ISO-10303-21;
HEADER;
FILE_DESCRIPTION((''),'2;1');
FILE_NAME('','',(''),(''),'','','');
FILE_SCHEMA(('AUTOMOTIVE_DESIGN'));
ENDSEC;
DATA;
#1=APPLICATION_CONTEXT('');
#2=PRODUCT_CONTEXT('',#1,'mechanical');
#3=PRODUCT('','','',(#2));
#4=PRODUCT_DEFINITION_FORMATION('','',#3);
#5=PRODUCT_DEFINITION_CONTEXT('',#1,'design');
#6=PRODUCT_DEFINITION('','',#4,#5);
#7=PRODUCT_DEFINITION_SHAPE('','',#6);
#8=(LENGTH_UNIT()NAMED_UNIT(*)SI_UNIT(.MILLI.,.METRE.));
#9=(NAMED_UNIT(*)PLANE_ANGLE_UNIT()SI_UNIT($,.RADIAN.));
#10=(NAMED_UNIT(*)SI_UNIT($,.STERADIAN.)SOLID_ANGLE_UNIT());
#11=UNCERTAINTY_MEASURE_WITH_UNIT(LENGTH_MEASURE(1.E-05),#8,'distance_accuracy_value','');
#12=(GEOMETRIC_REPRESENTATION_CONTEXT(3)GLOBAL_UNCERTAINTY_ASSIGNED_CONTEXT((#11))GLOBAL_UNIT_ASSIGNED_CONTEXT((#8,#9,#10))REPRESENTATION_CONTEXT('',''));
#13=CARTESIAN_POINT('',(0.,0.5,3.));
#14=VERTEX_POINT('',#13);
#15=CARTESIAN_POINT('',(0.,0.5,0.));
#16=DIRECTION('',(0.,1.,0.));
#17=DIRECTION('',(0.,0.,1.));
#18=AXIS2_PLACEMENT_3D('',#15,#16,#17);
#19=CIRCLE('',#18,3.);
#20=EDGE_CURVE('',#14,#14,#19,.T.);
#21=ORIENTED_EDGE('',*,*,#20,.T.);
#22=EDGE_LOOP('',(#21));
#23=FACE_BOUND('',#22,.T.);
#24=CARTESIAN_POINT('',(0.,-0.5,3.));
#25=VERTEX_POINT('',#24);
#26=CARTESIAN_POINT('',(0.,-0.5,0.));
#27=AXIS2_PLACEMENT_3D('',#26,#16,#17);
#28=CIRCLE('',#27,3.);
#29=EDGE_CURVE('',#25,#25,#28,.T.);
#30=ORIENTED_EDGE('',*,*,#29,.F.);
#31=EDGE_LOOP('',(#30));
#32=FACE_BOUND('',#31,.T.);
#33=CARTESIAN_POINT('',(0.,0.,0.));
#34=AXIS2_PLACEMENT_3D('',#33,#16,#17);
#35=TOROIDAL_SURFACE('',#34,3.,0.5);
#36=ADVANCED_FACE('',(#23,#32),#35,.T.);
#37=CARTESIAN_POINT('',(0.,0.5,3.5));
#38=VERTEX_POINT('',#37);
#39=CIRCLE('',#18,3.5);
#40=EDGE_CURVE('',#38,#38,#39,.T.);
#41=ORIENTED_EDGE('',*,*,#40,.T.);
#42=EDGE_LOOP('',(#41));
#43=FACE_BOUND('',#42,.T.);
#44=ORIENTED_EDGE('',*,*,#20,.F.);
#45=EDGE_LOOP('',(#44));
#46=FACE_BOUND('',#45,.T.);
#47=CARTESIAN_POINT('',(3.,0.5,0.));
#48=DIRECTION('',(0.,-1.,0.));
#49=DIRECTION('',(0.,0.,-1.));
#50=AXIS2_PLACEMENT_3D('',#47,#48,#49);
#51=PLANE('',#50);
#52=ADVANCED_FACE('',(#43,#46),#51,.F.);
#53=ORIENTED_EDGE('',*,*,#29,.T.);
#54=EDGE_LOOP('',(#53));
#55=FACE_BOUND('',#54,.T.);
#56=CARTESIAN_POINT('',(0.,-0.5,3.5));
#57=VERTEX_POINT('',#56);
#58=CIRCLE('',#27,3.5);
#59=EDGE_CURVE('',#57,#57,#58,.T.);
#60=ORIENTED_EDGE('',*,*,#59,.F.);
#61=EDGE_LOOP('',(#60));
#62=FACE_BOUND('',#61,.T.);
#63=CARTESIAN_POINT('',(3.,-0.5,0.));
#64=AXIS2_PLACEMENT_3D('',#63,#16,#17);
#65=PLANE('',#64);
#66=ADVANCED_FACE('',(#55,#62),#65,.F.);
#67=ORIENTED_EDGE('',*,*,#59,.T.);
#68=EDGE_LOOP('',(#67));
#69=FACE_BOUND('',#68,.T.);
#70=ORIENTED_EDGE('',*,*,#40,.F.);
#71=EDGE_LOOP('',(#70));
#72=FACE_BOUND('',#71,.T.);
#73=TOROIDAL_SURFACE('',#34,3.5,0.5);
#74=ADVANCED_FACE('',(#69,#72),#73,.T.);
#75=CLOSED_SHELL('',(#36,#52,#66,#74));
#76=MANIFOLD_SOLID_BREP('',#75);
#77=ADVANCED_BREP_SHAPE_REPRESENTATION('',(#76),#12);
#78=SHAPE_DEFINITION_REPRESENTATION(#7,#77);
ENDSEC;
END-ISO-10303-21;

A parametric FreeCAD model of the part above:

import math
import FreeCAD as App
import Part
import Sketcher

V = App.Vector

doc = App.newDocument("Part")
body = doc.addObject("PartDesign::Body", "Body")

# Sketch on XY plane
sketch1 = body.newObject("Sketcher::SketchObject", "Sketch")
sketch1.AttachmentSupport = (doc.getObject("XY_Plane"), [""])
sketch1.MapMode = "FlatFace"
sketch1.addGeometry([
    Part.LineSegment(V(3.5, 0.5, 0), V(3, 0.5, 0)),
    Part.ArcOfCircle(Part.Circle(V(3, 0, 0), V(0, 0, 1), 0.5), math.radians(90), math.radians(270)),
    Part.LineSegment(V(3, -0.5, 0), V(3.5, -0.5, 0)),
    Part.ArcOfCircle(Part.Circle(V(3.5, 0, 0), V(0, 0, 1), 0.5), math.radians(-90), math.radians(90)),
], False)
sketch1.addConstraint([
    Sketcher.Constraint("Tangent", 0, 2, 1, 1),
    Sketcher.Constraint("Tangent", 1, 2, 2, 1),
    Sketcher.Constraint("Tangent", 2, 2, 3, 1),
    Sketcher.Constraint("Tangent", 3, 2, 0, 1),
    Sketcher.Constraint("Horizontal", 0),
    Sketcher.Constraint("Horizontal", 2),
    Sketcher.Constraint("PointOnObject", 1, 3, -1),
    Sketcher.Constraint("Radius", 1, 0.5),
    Sketcher.Constraint("DistanceX", 0, 2, 0, 1, 0.5),
    Sketcher.Constraint("DistanceX", -1, 1, 1, 3, 3.0),
])
revolution = body.newObject("PartDesign::Revolution", "Revolution")
revolution.Profile = sketch1
revolution.ReferenceAxis = (sketch1, ["V_Axis"])
revolution.Angle = 360

doc.recompute()
